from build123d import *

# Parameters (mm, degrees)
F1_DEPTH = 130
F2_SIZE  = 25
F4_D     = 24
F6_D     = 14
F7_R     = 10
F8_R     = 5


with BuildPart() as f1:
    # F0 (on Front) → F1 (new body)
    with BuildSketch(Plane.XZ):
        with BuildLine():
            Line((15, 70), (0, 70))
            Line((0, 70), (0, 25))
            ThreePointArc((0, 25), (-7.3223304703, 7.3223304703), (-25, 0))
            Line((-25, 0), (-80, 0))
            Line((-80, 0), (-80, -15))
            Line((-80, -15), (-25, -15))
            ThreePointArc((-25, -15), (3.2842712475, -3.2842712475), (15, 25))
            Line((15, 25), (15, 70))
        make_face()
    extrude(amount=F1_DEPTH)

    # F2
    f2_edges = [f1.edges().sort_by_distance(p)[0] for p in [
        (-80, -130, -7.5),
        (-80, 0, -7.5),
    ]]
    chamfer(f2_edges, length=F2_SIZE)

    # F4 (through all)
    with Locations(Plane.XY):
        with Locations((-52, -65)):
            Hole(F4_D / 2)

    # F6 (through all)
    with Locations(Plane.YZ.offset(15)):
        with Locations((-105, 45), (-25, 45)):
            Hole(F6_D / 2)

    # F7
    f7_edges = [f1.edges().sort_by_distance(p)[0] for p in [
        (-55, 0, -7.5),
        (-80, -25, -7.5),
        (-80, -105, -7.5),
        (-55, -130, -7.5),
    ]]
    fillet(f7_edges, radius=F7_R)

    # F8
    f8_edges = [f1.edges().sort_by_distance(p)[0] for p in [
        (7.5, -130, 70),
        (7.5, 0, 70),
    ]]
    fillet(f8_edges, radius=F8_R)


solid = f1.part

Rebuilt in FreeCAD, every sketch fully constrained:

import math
import FreeCAD as App
import Part
import Sketcher

V = App.Vector


def edges_at(feature, points):
    """Names of the edges that pass closest to the given points."""
    edges = feature.Shape.Edges
    near = lambda p: min(range(len(edges)), key=lambda i: edges[i].distToShape(Part.Vertex(*p))[0])
    return sorted({f"Edge{near(p) + 1}" for p in points})

doc = App.newDocument("Part")
body = doc.addObject("PartDesign::Body", "Body")

# Sketch on XZ plane
sketch1 = body.newObject("Sketcher::SketchObject", "Sketch")
sketch1.AttachmentSupport = (doc.getObject("XZ_Plane"), [""])
sketch1.MapMode = "FlatFace"
sketch1.addGeometry(Part.LineSegment(V(15, 70, 0), V(0, 70, 0)), False)
sketch1.addGeometry(Part.LineSegment(V(0, 70, 0), V(0, 25, 0)), False)
sketch1.addGeometry(Part.ArcOfCircle(Part.Circle(V(-25, 25, 0), V(0, 0, 1), 25), math.radians(-90), math.radians(0)), False)
sketch1.addGeometry(Part.LineSegment(V(-25, 0, 0), V(-80, 0, 0)), False)
sketch1.addGeometry(Part.LineSegment(V(-80, 0, 0), V(-80, -15, 0)), False)
sketch1.addGeometry(Part.LineSegment(V(-80, -15, 0), V(-25, -15, 0)), False)
sketch1.addGeometry(Part.ArcOfCircle(Part.Circle(V(-25, 25, 0), V(0, 0, 1), 40), math.radians(-90), math.radians(0)), False)
sketch1.addGeometry(Part.LineSegment(V(15, 25, 0), V(15, 70, 0)), False)
sketch1.addConstraint(Sketcher.Constraint("Coincident", 0, 2, 1, 1))
sketch1.addConstraint(Sketcher.Constraint("Tangent", 1, 2, 2, 2))
sketch1.addConstraint(Sketcher.Constraint("Tangent", 2, 1, 3, 1))
sketch1.addConstraint(Sketcher.Constraint("Coincident", 3, 2, 4, 1))
sketch1.addConstraint(Sketcher.Constraint("Coincident", 4, 2, 5, 1))
sketch1.addConstraint(Sketcher.Constraint("Tangent", 5, 2, 6, 1))
sketch1.addConstraint(Sketcher.Constraint("Tangent", 6, 2, 7, 1))
sketch1.addConstraint(Sketcher.Constraint("Coincident", 7, 2, 0, 1))
sketch1.addConstraint(Sketcher.Constraint("Horizontal", 0))
sketch1.addConstraint(Sketcher.Constraint("Vertical", 1))
sketch1.addConstraint(Sketcher.Constraint("Horizontal", 3))
sketch1.addConstraint(Sketcher.Constraint("Vertical", 4))
sketch1.addConstraint(Sketcher.Constraint("Horizontal", 5))
sketch1.addConstraint(Sketcher.Constraint("Vertical", 7))
sketch1.addConstraint(Sketcher.Constraint("Coincident", 6, 3, 2, 3))
sketch1.addConstraint(Sketcher.Constraint("PointOnObject", 0, 2, -2))
sketch1.addConstraint(Sketcher.Constraint("PointOnObject", 2, 1, -1))
sketch1.addConstraint(Sketcher.Constraint("Radius", 2, 25.0))
sketch1.addConstraint(Sketcher.Constraint("Radius", 6, 40.0))
sketch1.addConstraint(Sketcher.Constraint("DistanceX", 3, 2, 3, 1, 55.0))
sketch1.addConstraint(Sketcher.Constraint("DistanceY", 1, 2, 1, 1, 45.0))
pad1 = body.newObject("PartDesign::Pad", "Pad")
pad1.Profile = sketch1
pad1.Length = 130
doc.recompute()

chamfer = body.newObject("PartDesign::Chamfer", "Chamfer")
chamfer.Base = (pad1, edges_at(pad1, [(-80, -130, -7.5), (-80, 0, -7.5)]))
chamfer.Size = 25

# Sketch on XY plane
sketch2 = body.newObject("Sketcher::SketchObject", "Sketch001")
sketch2.AttachmentSupport = (doc.getObject("XY_Plane"), [""])
sketch2.MapMode = "FlatFace"
sketch2.addGeometry(Part.Circle(V(-52, -65, 0), V(0, 0, 1), 12), False)
sketch2.addConstraint(Sketcher.Constraint("Diameter", 0, 24.0))
sketch2.addConstraint(Sketcher.Constraint("DistanceX", 0, 3, -1, 1, 52.0))
sketch2.addConstraint(Sketcher.Constraint("DistanceY", 0, 3, -1, 1, 65.0))
doc.recompute()
hole = body.newObject("PartDesign::Hole", "Hole")
hole.Profile = sketch2
hole.ThreadType = "None"
hole.Diameter = 24
hole.DepthType = "ThroughAll"

# Sketch on YZ plane
sketch3 = body.newObject("Sketcher::SketchObject", "Sketch002")
sketch3.AttachmentSupport = (doc.getObject("YZ_Plane"), [""])
sketch3.MapMode = "FlatFace"
sketch3.AttachmentOffset = App.Placement(V(0, 0, 15), App.Rotation())
sketch3.addGeometry(Part.Circle(V(-105, 45, 0), V(0, 0, 1), 7), False)
sketch3.addGeometry(Part.Circle(V(-25, 45, 0), V(0, 0, 1), 7), False)
sketch3.addConstraint(Sketcher.Constraint("Equal", 0, 1))
sketch3.addConstraint(Sketcher.Constraint("Horizontal", 0, 3, 1, 3))
sketch3.addConstraint(Sketcher.Constraint("Diameter", 0, 14.0))
sketch3.addConstraint(Sketcher.Constraint("DistanceX", 0, 3, -1, 1, 105.0))
sketch3.addConstraint(Sketcher.Constraint("DistanceY", -1, 1, 0, 3, 45.0))
sketch3.addConstraint(Sketcher.Constraint("DistanceX", 1, 3, -1, 1, 25.0))
doc.recompute()
hole2 = body.newObject("PartDesign::Hole", "Hole001")
hole2.Profile = sketch3
hole2.ThreadType = "None"
hole2.Diameter = 14
hole2.DepthType = "ThroughAll"
doc.recompute()

fillet = body.newObject("PartDesign::Fillet", "Fillet")
fillet.Base = (hole2, edges_at(hole2, [
    (-55, 0, -7.5),
    (-80, -25, -7.5),
    (-80, -105, -7.5),
    (-55, -130, -7.5),
]))
fillet.Radius = 10
doc.recompute()

fillet2 = body.newObject("PartDesign::Fillet", "Fillet001")
fillet2.Base = (fillet, edges_at(fillet, [(7.5, -130, 70), (7.5, 0, 70)]))
fillet2.Radius = 5

doc.recompute()
